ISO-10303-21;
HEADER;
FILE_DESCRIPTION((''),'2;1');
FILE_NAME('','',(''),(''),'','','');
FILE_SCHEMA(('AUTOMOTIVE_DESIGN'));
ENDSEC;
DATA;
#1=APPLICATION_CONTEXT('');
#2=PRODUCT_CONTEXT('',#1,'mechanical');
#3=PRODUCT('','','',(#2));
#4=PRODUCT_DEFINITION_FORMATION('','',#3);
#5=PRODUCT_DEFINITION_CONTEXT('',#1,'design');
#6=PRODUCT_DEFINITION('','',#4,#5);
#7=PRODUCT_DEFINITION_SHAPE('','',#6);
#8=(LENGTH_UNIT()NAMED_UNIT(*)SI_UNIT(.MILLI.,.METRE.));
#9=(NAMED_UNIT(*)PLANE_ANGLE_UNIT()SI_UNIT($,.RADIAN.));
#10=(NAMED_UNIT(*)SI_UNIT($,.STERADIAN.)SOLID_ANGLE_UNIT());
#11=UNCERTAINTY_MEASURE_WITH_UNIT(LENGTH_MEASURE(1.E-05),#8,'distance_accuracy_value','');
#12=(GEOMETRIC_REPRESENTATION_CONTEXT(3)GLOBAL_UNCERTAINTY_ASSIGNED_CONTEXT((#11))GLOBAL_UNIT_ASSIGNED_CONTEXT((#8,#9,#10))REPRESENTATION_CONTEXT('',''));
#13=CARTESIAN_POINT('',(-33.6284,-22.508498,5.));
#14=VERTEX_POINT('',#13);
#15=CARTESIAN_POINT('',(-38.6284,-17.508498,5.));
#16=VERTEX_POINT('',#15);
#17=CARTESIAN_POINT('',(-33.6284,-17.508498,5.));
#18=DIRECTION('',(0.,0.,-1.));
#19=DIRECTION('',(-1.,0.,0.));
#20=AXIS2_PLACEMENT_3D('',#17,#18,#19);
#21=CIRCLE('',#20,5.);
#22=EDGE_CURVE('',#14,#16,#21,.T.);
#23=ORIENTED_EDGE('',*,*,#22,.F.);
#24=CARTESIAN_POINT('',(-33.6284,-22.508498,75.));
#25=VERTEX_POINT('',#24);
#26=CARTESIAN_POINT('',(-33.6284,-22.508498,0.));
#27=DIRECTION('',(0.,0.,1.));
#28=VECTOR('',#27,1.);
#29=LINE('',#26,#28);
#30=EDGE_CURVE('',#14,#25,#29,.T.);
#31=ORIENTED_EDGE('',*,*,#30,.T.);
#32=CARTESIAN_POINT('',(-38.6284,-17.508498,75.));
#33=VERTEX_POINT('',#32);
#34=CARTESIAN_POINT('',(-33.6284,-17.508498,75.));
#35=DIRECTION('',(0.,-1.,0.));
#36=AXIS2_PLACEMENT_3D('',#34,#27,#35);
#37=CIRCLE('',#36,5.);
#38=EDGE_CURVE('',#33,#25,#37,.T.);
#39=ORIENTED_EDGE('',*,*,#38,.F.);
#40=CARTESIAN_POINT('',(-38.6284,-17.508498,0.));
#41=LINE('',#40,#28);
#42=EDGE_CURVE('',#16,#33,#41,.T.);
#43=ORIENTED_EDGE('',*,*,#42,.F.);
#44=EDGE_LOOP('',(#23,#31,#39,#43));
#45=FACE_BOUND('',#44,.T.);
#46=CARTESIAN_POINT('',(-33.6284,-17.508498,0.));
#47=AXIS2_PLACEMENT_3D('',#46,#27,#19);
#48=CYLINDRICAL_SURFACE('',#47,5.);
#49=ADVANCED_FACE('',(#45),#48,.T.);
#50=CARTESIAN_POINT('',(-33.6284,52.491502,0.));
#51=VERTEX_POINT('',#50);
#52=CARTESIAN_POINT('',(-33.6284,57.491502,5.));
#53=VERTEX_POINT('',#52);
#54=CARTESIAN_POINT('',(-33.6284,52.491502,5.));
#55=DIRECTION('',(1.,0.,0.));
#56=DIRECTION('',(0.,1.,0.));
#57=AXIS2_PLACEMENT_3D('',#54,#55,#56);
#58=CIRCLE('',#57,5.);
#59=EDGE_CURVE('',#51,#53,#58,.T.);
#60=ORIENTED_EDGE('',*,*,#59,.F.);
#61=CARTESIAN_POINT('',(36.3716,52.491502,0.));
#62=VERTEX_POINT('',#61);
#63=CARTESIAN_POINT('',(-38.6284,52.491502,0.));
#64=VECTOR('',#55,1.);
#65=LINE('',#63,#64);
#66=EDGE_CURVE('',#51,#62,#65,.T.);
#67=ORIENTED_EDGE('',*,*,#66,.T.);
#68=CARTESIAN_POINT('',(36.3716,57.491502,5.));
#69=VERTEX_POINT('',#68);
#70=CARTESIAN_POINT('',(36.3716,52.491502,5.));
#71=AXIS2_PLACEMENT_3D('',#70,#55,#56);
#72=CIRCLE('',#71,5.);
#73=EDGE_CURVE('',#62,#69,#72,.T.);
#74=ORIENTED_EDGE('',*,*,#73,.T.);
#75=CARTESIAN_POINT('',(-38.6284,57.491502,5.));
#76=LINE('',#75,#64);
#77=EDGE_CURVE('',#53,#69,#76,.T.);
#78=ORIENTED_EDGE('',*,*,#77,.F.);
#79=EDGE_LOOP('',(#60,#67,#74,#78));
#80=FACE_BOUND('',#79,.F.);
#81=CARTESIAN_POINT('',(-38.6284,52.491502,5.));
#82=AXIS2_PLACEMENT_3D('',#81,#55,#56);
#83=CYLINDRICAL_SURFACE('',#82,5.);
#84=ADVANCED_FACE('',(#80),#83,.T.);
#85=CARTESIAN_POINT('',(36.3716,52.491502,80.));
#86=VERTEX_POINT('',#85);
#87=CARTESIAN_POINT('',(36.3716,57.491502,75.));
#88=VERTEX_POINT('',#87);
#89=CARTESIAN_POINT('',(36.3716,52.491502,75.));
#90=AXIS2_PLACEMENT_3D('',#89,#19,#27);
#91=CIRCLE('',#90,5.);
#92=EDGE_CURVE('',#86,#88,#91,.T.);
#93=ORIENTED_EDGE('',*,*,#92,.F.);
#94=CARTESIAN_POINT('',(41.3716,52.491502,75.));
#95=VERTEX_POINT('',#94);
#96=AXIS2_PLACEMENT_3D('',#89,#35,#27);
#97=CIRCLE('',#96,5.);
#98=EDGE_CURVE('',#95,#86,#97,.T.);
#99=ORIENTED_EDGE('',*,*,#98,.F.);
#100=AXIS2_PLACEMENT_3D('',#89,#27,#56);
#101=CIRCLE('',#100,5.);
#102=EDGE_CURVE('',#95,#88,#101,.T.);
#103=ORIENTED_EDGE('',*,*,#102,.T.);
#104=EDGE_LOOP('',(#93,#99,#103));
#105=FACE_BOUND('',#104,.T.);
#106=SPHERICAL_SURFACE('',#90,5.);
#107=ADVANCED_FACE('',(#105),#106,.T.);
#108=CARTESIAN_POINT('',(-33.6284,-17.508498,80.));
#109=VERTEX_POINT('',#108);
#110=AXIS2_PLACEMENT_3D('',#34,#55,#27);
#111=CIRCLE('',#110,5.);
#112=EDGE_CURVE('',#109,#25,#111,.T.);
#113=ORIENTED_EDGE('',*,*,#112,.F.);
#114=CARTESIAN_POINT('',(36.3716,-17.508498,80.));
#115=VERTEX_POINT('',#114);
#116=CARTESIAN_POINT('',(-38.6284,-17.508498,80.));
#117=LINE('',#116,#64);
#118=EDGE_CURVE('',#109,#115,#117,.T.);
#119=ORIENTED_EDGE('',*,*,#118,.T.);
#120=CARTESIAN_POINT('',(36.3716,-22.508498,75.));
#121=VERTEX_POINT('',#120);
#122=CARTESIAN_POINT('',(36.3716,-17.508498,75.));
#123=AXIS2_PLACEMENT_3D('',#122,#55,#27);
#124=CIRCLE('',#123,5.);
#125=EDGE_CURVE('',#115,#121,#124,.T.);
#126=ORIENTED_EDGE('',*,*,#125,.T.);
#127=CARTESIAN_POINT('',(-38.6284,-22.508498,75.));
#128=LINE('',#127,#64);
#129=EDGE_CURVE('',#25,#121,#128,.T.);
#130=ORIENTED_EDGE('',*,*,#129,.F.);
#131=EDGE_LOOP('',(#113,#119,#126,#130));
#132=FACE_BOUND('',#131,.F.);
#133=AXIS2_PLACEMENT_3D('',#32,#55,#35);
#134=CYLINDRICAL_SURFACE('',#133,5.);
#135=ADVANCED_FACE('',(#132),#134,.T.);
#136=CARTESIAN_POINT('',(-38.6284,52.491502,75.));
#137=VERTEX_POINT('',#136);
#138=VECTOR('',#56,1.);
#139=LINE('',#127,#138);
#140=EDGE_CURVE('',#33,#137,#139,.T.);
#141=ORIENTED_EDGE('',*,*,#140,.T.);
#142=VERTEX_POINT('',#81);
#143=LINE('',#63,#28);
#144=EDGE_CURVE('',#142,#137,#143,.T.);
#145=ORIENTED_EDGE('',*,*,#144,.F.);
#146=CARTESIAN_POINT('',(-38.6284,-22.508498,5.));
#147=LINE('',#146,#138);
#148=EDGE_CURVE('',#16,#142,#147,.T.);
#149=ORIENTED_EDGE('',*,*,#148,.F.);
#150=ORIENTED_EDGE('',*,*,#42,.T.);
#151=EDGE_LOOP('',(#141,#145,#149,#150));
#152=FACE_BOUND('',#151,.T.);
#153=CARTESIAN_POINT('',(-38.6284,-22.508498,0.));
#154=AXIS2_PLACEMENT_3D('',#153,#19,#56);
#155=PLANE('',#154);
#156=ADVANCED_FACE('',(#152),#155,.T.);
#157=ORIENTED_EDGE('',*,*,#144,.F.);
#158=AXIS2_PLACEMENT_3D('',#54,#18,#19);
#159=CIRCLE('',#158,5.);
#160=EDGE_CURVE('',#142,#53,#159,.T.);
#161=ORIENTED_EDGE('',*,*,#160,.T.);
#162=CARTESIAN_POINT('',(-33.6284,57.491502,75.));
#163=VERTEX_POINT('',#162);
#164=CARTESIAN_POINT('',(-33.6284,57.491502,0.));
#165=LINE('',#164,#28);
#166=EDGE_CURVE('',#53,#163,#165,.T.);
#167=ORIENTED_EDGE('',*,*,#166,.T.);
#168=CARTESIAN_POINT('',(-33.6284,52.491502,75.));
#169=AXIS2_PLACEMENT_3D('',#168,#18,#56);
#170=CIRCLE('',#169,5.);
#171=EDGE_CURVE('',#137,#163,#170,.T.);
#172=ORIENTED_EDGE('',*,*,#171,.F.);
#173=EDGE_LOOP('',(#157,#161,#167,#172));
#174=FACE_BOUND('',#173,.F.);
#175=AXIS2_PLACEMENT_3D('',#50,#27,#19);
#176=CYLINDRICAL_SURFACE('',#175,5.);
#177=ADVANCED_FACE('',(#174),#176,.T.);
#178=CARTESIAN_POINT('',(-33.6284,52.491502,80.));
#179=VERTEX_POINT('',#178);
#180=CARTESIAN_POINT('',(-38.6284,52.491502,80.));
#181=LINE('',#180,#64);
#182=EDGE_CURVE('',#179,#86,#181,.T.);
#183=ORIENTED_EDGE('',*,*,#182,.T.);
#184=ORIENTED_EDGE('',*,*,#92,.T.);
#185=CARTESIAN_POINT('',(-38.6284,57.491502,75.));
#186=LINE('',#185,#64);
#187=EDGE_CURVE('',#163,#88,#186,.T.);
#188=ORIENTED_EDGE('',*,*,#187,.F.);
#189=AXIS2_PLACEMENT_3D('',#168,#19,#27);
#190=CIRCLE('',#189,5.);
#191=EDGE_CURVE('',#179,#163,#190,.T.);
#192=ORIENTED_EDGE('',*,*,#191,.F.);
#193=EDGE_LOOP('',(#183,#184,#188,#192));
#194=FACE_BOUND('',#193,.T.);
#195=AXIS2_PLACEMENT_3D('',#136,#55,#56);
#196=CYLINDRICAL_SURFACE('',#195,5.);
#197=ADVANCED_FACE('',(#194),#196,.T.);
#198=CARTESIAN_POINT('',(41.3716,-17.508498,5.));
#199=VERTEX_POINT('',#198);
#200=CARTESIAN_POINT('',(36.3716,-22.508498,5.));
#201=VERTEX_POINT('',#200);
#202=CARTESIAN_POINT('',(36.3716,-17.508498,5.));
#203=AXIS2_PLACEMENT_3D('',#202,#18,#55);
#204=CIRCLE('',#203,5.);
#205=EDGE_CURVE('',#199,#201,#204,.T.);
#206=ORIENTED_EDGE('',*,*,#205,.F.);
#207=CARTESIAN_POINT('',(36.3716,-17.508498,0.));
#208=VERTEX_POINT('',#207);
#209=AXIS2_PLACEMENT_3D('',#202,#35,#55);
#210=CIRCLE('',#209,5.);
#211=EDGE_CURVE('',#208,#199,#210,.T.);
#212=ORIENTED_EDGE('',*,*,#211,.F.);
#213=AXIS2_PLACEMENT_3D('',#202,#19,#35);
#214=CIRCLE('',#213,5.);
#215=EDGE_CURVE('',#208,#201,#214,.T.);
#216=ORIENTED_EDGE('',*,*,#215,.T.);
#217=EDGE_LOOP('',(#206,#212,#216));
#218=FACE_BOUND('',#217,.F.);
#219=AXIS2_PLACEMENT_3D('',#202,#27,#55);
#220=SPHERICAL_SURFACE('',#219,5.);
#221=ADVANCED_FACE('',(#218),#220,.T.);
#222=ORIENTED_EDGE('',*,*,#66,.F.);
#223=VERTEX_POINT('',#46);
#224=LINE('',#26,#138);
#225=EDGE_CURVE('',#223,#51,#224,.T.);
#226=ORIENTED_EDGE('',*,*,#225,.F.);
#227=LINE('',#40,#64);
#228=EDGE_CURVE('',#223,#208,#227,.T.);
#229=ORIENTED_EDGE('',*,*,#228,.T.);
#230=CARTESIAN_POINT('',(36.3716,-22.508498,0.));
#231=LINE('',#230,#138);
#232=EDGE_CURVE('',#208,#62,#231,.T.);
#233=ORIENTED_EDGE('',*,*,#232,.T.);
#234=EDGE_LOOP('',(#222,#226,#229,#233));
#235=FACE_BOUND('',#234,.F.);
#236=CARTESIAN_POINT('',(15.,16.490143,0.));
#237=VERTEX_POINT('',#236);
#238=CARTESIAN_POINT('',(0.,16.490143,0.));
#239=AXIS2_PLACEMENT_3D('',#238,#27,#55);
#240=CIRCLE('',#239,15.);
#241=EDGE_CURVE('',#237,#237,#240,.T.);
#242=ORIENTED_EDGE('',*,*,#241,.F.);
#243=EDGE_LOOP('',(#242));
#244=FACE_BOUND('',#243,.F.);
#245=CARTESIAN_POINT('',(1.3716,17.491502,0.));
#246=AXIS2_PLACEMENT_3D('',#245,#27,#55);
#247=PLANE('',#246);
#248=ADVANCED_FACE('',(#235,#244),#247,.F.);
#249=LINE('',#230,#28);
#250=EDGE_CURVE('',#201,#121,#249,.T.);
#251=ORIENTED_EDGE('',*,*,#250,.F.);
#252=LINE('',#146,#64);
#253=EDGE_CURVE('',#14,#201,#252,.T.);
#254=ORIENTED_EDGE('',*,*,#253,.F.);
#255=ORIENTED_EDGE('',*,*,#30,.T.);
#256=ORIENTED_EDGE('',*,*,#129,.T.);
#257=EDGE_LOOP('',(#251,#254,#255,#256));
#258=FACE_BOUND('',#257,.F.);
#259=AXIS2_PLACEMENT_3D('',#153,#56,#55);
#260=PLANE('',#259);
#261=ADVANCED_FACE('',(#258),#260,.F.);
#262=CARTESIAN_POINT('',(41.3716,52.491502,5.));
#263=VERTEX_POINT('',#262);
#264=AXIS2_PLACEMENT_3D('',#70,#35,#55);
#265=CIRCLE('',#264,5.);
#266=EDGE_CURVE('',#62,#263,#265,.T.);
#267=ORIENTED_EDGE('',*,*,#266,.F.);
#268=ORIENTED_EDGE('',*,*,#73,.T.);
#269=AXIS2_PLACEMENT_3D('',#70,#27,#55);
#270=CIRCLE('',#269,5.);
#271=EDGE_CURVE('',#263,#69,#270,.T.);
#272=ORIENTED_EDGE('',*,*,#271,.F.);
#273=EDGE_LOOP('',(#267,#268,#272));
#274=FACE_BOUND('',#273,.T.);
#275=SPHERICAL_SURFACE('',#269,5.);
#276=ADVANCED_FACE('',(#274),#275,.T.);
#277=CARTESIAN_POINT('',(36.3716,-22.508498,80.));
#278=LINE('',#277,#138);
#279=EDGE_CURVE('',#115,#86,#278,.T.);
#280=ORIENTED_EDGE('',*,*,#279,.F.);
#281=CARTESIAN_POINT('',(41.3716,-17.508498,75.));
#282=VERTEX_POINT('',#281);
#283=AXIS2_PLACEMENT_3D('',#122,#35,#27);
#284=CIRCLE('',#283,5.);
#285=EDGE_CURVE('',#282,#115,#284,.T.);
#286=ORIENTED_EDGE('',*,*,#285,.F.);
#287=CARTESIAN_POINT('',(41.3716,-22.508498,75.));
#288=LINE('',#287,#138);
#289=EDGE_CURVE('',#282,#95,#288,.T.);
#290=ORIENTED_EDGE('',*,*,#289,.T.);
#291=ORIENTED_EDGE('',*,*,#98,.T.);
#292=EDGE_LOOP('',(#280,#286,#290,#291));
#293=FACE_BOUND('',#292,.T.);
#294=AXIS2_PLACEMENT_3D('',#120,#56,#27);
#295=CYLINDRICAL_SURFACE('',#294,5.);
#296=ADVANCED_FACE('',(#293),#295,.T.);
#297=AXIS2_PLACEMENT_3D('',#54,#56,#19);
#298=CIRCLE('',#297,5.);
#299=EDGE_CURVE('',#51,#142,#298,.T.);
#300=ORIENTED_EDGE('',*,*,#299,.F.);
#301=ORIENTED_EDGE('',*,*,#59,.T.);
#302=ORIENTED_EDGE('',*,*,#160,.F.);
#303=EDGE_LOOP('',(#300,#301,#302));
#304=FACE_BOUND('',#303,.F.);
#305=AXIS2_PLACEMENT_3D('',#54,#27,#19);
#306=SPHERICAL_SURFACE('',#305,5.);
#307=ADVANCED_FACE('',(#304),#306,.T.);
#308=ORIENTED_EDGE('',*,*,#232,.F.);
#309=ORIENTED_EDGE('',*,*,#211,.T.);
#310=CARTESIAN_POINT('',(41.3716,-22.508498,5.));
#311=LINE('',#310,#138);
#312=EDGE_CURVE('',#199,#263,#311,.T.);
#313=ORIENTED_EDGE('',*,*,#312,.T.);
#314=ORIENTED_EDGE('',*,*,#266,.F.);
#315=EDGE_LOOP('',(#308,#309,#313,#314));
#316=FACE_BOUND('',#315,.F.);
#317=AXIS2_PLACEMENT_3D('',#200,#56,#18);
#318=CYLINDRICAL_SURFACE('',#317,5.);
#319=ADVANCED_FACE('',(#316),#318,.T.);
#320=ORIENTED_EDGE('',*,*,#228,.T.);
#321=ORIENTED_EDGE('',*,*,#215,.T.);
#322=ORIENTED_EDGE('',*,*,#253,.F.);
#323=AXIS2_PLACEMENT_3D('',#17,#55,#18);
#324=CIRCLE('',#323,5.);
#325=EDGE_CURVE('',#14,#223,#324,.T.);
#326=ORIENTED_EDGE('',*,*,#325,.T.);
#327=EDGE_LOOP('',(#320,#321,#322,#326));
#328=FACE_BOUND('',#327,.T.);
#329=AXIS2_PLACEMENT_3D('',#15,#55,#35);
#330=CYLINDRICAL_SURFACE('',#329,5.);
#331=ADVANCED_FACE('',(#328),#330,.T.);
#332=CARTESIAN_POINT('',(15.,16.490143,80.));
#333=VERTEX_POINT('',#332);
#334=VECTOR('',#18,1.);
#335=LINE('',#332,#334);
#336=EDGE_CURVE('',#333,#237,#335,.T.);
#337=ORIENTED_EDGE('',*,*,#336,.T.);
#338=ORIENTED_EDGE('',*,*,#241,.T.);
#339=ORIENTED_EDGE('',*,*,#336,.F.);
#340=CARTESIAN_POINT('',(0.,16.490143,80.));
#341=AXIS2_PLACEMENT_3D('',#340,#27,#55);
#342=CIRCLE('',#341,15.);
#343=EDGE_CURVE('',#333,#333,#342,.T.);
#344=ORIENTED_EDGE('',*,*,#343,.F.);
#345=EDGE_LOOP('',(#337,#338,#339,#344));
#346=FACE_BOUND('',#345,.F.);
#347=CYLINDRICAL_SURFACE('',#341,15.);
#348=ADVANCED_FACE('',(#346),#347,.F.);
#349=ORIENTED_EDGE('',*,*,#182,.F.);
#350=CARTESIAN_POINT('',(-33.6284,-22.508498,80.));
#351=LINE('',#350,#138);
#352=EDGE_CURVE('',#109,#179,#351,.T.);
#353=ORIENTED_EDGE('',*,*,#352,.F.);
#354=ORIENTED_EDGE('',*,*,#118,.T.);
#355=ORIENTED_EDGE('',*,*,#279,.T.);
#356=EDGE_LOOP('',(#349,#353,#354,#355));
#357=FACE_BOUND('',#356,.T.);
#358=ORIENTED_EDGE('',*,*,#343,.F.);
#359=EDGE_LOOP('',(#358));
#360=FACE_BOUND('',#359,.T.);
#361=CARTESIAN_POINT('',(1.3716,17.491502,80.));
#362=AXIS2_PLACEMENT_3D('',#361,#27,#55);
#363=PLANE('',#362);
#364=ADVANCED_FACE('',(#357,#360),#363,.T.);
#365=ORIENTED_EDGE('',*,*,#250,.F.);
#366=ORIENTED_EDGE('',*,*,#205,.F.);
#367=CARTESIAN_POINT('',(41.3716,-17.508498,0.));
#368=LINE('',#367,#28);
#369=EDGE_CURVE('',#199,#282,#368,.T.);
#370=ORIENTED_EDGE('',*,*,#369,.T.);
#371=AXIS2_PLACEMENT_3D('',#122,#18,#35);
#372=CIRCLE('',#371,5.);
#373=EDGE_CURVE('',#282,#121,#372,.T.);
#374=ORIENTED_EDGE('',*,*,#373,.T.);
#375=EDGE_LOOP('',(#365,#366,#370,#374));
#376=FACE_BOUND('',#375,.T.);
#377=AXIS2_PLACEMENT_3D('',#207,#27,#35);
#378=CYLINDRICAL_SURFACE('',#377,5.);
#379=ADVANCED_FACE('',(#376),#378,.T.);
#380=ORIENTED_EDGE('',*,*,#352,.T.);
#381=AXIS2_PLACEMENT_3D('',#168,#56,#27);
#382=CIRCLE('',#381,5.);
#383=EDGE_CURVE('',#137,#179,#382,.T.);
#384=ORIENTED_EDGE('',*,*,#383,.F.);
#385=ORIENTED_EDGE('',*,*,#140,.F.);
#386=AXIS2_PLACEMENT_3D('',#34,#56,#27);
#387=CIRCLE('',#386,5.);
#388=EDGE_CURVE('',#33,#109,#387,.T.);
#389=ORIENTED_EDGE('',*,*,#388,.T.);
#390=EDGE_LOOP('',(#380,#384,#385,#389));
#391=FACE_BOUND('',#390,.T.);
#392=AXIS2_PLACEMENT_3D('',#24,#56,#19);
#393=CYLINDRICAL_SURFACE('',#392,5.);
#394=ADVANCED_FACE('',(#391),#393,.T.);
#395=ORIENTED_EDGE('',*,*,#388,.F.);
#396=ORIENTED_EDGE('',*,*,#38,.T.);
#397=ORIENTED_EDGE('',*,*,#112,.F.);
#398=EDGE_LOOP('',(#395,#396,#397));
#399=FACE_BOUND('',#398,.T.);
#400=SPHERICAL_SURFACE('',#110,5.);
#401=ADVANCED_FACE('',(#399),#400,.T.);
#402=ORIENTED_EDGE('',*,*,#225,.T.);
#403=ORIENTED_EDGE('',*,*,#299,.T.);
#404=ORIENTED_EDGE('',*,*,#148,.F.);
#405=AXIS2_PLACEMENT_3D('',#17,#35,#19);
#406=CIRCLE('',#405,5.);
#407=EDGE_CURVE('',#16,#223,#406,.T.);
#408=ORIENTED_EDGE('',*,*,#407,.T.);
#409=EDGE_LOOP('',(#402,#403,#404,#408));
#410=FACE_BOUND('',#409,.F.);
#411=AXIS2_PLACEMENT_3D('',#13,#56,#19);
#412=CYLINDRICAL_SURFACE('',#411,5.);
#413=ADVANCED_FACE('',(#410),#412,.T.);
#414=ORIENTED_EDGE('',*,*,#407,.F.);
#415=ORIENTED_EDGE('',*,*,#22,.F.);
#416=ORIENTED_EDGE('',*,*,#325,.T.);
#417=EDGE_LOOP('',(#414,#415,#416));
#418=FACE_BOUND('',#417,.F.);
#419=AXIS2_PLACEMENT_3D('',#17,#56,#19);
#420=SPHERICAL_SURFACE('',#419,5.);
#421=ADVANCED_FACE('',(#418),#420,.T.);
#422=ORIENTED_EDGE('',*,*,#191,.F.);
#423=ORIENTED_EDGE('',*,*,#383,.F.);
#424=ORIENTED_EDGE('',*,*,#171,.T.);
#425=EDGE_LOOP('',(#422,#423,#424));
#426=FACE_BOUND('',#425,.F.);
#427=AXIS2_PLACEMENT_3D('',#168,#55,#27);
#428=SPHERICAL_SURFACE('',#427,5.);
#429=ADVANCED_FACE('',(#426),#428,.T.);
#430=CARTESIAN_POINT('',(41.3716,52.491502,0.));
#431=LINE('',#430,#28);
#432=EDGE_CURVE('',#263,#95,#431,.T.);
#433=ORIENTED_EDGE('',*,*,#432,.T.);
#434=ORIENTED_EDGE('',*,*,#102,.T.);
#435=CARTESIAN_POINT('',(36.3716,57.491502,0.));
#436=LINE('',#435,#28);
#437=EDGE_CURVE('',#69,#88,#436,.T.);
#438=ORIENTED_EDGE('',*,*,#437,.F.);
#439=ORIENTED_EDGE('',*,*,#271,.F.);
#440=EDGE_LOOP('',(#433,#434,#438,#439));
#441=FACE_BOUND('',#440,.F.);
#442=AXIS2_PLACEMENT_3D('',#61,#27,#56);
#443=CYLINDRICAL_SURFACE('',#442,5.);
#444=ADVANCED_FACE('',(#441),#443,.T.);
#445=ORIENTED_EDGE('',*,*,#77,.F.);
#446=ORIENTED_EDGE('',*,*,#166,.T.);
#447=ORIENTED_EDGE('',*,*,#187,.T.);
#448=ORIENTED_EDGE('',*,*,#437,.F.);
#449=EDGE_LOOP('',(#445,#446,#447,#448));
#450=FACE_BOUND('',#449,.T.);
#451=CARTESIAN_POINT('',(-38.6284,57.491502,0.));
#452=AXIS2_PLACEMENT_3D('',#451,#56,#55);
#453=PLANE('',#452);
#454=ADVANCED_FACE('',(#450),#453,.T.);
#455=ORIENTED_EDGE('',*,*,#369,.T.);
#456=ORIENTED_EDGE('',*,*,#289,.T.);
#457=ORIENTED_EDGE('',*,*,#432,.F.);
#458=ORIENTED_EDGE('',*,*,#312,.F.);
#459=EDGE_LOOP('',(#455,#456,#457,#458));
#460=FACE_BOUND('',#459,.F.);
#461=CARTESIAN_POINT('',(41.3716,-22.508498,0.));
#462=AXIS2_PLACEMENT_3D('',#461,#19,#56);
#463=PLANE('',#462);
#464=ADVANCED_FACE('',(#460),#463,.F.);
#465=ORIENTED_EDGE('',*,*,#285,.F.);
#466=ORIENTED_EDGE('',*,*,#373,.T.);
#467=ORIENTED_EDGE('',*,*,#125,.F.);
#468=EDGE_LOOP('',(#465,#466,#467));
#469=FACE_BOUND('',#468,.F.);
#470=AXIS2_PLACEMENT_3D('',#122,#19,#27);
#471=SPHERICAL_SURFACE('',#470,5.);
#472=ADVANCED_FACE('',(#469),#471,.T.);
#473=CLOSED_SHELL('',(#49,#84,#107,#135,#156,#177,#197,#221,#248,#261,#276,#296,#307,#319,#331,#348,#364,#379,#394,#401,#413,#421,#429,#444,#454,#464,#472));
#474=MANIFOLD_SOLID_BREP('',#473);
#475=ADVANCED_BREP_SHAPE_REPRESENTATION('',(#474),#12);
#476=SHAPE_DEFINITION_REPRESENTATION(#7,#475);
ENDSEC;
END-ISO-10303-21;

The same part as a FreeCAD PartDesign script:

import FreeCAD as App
import Part
import Sketcher
from FreeCAD import Vector


def edges_at(feature, points):
    """Names of the edges that pass closest to the given points."""
    edges = feature.Shape.Edges
    near = lambda p: min(range(len(edges)), key=lambda i: edges[i].distToShape(Part.Vertex(*p))[0])
    return sorted({f"Edge{near(p) + 1}" for p in points})

doc = App.newDocument("Part")
body = doc.addObject("PartDesign::Body", "Body")

# Sketch on XY plane
sketch1 = doc.addObject("Sketcher::SketchObject", "Sketch")
body.addObject(sketch1)
sketch1.AttachmentSupport = (doc.XY_Plane, [""])
sketch1.MapMode = "FlatFace"
sketch1.addGeometry([
    Part.LineSegment(Vector(-39, 57, 0), Vector(-39, -23, 0)),
    Part.LineSegment(Vector(-39, -23, 0), Vector(41, -23, 0)),
    Part.LineSegment(Vector(41, -23, 0), Vector(41, 57, 0)),
    Part.LineSegment(Vector(41, 57, 0), Vector(-39, 57, 0)),
], False)
sketch1.addConstraint([
    Sketcher.Constraint("Coincident", 0, 2, 1, 1),
    Sketcher.Constraint("Coincident", 1, 2, 2, 1),
    Sketcher.Constraint("Coincident", 2, 2, 3, 1),
    Sketcher.Constraint("Coincident", 3, 2, 0, 1),
    Sketcher.Constraint("Vertical", 0),
    Sketcher.Constraint("Horizontal", 1),
    Sketcher.Constraint("Vertical", 2),
    Sketcher.Constraint("Horizontal", 3),
    Sketcher.Constraint("Equal", 3, 0),
    Sketcher.Constraint("DistanceX", 1, 1, 1, 2, 80.0),
    Sketcher.Constraint("DistanceX", 0, 2, -1, 1, 38.6284),
    Sketcher.Constraint("DistanceY", -1, 1, 2, 2, 57.491502),
])
pad1 = doc.addObject("PartDesign::Pad", "Pad")
body.addObject(pad1)
pad1.Profile = sketch1
pad1.Length = 80

# Sketch on XY plane
sketch2 = doc.addObject("Sketcher::SketchObject", "Sketch001")
body.addObject(sketch2)
sketch2.AttachmentSupport = (doc.XY_Plane, [""])
sketch2.MapMode = "FlatFace"
sketch2.AttachmentOffset = App.Placement(Vector(0, 0, 80), App.Rotation())
sketch2.addGeometry(Part.Circle(Vector(0, 16, 0), Vector(0, 0, 1), 15), False)
sketch2.addConstraint([
    Sketcher.Constraint("PointOnObject", 0, 3, -2),
    Sketcher.Constraint("Diameter", 0, 30.0),
    Sketcher.Constraint("DistanceY", -1, 1, 0, 3, 16.490143),
])
pocket1 = doc.addObject("PartDesign::Pocket", "Pocket")
body.addObject(pocket1)
pocket1.Profile = sketch2
pocket1.Type = "ThroughAll"
doc.recompute()

fillet = doc.addObject("PartDesign::Fillet", "Fillet")
body.addObject(fillet)
fillet.Base = (pocket1, edges_at(pocket1, [
    (1.372, 57.492, 80),
    (1.372, -22.508, 80),
    (-38.628, 17.492, 80),
    (41.372, 17.492, 80),
    (41.372, 57.492, 40),
    (41.372, -22.508, 40),
    (41.372, 17.492, 0),
    (-38.628, 57.492, 40),
    (-38.628, 17.492, 0),
    (-38.628, -22.508, 40),
    (1.372, 57.492, 0),
    (1.372, -22.508, 0),
]))
fillet.Radius = 5

doc.recompute()
